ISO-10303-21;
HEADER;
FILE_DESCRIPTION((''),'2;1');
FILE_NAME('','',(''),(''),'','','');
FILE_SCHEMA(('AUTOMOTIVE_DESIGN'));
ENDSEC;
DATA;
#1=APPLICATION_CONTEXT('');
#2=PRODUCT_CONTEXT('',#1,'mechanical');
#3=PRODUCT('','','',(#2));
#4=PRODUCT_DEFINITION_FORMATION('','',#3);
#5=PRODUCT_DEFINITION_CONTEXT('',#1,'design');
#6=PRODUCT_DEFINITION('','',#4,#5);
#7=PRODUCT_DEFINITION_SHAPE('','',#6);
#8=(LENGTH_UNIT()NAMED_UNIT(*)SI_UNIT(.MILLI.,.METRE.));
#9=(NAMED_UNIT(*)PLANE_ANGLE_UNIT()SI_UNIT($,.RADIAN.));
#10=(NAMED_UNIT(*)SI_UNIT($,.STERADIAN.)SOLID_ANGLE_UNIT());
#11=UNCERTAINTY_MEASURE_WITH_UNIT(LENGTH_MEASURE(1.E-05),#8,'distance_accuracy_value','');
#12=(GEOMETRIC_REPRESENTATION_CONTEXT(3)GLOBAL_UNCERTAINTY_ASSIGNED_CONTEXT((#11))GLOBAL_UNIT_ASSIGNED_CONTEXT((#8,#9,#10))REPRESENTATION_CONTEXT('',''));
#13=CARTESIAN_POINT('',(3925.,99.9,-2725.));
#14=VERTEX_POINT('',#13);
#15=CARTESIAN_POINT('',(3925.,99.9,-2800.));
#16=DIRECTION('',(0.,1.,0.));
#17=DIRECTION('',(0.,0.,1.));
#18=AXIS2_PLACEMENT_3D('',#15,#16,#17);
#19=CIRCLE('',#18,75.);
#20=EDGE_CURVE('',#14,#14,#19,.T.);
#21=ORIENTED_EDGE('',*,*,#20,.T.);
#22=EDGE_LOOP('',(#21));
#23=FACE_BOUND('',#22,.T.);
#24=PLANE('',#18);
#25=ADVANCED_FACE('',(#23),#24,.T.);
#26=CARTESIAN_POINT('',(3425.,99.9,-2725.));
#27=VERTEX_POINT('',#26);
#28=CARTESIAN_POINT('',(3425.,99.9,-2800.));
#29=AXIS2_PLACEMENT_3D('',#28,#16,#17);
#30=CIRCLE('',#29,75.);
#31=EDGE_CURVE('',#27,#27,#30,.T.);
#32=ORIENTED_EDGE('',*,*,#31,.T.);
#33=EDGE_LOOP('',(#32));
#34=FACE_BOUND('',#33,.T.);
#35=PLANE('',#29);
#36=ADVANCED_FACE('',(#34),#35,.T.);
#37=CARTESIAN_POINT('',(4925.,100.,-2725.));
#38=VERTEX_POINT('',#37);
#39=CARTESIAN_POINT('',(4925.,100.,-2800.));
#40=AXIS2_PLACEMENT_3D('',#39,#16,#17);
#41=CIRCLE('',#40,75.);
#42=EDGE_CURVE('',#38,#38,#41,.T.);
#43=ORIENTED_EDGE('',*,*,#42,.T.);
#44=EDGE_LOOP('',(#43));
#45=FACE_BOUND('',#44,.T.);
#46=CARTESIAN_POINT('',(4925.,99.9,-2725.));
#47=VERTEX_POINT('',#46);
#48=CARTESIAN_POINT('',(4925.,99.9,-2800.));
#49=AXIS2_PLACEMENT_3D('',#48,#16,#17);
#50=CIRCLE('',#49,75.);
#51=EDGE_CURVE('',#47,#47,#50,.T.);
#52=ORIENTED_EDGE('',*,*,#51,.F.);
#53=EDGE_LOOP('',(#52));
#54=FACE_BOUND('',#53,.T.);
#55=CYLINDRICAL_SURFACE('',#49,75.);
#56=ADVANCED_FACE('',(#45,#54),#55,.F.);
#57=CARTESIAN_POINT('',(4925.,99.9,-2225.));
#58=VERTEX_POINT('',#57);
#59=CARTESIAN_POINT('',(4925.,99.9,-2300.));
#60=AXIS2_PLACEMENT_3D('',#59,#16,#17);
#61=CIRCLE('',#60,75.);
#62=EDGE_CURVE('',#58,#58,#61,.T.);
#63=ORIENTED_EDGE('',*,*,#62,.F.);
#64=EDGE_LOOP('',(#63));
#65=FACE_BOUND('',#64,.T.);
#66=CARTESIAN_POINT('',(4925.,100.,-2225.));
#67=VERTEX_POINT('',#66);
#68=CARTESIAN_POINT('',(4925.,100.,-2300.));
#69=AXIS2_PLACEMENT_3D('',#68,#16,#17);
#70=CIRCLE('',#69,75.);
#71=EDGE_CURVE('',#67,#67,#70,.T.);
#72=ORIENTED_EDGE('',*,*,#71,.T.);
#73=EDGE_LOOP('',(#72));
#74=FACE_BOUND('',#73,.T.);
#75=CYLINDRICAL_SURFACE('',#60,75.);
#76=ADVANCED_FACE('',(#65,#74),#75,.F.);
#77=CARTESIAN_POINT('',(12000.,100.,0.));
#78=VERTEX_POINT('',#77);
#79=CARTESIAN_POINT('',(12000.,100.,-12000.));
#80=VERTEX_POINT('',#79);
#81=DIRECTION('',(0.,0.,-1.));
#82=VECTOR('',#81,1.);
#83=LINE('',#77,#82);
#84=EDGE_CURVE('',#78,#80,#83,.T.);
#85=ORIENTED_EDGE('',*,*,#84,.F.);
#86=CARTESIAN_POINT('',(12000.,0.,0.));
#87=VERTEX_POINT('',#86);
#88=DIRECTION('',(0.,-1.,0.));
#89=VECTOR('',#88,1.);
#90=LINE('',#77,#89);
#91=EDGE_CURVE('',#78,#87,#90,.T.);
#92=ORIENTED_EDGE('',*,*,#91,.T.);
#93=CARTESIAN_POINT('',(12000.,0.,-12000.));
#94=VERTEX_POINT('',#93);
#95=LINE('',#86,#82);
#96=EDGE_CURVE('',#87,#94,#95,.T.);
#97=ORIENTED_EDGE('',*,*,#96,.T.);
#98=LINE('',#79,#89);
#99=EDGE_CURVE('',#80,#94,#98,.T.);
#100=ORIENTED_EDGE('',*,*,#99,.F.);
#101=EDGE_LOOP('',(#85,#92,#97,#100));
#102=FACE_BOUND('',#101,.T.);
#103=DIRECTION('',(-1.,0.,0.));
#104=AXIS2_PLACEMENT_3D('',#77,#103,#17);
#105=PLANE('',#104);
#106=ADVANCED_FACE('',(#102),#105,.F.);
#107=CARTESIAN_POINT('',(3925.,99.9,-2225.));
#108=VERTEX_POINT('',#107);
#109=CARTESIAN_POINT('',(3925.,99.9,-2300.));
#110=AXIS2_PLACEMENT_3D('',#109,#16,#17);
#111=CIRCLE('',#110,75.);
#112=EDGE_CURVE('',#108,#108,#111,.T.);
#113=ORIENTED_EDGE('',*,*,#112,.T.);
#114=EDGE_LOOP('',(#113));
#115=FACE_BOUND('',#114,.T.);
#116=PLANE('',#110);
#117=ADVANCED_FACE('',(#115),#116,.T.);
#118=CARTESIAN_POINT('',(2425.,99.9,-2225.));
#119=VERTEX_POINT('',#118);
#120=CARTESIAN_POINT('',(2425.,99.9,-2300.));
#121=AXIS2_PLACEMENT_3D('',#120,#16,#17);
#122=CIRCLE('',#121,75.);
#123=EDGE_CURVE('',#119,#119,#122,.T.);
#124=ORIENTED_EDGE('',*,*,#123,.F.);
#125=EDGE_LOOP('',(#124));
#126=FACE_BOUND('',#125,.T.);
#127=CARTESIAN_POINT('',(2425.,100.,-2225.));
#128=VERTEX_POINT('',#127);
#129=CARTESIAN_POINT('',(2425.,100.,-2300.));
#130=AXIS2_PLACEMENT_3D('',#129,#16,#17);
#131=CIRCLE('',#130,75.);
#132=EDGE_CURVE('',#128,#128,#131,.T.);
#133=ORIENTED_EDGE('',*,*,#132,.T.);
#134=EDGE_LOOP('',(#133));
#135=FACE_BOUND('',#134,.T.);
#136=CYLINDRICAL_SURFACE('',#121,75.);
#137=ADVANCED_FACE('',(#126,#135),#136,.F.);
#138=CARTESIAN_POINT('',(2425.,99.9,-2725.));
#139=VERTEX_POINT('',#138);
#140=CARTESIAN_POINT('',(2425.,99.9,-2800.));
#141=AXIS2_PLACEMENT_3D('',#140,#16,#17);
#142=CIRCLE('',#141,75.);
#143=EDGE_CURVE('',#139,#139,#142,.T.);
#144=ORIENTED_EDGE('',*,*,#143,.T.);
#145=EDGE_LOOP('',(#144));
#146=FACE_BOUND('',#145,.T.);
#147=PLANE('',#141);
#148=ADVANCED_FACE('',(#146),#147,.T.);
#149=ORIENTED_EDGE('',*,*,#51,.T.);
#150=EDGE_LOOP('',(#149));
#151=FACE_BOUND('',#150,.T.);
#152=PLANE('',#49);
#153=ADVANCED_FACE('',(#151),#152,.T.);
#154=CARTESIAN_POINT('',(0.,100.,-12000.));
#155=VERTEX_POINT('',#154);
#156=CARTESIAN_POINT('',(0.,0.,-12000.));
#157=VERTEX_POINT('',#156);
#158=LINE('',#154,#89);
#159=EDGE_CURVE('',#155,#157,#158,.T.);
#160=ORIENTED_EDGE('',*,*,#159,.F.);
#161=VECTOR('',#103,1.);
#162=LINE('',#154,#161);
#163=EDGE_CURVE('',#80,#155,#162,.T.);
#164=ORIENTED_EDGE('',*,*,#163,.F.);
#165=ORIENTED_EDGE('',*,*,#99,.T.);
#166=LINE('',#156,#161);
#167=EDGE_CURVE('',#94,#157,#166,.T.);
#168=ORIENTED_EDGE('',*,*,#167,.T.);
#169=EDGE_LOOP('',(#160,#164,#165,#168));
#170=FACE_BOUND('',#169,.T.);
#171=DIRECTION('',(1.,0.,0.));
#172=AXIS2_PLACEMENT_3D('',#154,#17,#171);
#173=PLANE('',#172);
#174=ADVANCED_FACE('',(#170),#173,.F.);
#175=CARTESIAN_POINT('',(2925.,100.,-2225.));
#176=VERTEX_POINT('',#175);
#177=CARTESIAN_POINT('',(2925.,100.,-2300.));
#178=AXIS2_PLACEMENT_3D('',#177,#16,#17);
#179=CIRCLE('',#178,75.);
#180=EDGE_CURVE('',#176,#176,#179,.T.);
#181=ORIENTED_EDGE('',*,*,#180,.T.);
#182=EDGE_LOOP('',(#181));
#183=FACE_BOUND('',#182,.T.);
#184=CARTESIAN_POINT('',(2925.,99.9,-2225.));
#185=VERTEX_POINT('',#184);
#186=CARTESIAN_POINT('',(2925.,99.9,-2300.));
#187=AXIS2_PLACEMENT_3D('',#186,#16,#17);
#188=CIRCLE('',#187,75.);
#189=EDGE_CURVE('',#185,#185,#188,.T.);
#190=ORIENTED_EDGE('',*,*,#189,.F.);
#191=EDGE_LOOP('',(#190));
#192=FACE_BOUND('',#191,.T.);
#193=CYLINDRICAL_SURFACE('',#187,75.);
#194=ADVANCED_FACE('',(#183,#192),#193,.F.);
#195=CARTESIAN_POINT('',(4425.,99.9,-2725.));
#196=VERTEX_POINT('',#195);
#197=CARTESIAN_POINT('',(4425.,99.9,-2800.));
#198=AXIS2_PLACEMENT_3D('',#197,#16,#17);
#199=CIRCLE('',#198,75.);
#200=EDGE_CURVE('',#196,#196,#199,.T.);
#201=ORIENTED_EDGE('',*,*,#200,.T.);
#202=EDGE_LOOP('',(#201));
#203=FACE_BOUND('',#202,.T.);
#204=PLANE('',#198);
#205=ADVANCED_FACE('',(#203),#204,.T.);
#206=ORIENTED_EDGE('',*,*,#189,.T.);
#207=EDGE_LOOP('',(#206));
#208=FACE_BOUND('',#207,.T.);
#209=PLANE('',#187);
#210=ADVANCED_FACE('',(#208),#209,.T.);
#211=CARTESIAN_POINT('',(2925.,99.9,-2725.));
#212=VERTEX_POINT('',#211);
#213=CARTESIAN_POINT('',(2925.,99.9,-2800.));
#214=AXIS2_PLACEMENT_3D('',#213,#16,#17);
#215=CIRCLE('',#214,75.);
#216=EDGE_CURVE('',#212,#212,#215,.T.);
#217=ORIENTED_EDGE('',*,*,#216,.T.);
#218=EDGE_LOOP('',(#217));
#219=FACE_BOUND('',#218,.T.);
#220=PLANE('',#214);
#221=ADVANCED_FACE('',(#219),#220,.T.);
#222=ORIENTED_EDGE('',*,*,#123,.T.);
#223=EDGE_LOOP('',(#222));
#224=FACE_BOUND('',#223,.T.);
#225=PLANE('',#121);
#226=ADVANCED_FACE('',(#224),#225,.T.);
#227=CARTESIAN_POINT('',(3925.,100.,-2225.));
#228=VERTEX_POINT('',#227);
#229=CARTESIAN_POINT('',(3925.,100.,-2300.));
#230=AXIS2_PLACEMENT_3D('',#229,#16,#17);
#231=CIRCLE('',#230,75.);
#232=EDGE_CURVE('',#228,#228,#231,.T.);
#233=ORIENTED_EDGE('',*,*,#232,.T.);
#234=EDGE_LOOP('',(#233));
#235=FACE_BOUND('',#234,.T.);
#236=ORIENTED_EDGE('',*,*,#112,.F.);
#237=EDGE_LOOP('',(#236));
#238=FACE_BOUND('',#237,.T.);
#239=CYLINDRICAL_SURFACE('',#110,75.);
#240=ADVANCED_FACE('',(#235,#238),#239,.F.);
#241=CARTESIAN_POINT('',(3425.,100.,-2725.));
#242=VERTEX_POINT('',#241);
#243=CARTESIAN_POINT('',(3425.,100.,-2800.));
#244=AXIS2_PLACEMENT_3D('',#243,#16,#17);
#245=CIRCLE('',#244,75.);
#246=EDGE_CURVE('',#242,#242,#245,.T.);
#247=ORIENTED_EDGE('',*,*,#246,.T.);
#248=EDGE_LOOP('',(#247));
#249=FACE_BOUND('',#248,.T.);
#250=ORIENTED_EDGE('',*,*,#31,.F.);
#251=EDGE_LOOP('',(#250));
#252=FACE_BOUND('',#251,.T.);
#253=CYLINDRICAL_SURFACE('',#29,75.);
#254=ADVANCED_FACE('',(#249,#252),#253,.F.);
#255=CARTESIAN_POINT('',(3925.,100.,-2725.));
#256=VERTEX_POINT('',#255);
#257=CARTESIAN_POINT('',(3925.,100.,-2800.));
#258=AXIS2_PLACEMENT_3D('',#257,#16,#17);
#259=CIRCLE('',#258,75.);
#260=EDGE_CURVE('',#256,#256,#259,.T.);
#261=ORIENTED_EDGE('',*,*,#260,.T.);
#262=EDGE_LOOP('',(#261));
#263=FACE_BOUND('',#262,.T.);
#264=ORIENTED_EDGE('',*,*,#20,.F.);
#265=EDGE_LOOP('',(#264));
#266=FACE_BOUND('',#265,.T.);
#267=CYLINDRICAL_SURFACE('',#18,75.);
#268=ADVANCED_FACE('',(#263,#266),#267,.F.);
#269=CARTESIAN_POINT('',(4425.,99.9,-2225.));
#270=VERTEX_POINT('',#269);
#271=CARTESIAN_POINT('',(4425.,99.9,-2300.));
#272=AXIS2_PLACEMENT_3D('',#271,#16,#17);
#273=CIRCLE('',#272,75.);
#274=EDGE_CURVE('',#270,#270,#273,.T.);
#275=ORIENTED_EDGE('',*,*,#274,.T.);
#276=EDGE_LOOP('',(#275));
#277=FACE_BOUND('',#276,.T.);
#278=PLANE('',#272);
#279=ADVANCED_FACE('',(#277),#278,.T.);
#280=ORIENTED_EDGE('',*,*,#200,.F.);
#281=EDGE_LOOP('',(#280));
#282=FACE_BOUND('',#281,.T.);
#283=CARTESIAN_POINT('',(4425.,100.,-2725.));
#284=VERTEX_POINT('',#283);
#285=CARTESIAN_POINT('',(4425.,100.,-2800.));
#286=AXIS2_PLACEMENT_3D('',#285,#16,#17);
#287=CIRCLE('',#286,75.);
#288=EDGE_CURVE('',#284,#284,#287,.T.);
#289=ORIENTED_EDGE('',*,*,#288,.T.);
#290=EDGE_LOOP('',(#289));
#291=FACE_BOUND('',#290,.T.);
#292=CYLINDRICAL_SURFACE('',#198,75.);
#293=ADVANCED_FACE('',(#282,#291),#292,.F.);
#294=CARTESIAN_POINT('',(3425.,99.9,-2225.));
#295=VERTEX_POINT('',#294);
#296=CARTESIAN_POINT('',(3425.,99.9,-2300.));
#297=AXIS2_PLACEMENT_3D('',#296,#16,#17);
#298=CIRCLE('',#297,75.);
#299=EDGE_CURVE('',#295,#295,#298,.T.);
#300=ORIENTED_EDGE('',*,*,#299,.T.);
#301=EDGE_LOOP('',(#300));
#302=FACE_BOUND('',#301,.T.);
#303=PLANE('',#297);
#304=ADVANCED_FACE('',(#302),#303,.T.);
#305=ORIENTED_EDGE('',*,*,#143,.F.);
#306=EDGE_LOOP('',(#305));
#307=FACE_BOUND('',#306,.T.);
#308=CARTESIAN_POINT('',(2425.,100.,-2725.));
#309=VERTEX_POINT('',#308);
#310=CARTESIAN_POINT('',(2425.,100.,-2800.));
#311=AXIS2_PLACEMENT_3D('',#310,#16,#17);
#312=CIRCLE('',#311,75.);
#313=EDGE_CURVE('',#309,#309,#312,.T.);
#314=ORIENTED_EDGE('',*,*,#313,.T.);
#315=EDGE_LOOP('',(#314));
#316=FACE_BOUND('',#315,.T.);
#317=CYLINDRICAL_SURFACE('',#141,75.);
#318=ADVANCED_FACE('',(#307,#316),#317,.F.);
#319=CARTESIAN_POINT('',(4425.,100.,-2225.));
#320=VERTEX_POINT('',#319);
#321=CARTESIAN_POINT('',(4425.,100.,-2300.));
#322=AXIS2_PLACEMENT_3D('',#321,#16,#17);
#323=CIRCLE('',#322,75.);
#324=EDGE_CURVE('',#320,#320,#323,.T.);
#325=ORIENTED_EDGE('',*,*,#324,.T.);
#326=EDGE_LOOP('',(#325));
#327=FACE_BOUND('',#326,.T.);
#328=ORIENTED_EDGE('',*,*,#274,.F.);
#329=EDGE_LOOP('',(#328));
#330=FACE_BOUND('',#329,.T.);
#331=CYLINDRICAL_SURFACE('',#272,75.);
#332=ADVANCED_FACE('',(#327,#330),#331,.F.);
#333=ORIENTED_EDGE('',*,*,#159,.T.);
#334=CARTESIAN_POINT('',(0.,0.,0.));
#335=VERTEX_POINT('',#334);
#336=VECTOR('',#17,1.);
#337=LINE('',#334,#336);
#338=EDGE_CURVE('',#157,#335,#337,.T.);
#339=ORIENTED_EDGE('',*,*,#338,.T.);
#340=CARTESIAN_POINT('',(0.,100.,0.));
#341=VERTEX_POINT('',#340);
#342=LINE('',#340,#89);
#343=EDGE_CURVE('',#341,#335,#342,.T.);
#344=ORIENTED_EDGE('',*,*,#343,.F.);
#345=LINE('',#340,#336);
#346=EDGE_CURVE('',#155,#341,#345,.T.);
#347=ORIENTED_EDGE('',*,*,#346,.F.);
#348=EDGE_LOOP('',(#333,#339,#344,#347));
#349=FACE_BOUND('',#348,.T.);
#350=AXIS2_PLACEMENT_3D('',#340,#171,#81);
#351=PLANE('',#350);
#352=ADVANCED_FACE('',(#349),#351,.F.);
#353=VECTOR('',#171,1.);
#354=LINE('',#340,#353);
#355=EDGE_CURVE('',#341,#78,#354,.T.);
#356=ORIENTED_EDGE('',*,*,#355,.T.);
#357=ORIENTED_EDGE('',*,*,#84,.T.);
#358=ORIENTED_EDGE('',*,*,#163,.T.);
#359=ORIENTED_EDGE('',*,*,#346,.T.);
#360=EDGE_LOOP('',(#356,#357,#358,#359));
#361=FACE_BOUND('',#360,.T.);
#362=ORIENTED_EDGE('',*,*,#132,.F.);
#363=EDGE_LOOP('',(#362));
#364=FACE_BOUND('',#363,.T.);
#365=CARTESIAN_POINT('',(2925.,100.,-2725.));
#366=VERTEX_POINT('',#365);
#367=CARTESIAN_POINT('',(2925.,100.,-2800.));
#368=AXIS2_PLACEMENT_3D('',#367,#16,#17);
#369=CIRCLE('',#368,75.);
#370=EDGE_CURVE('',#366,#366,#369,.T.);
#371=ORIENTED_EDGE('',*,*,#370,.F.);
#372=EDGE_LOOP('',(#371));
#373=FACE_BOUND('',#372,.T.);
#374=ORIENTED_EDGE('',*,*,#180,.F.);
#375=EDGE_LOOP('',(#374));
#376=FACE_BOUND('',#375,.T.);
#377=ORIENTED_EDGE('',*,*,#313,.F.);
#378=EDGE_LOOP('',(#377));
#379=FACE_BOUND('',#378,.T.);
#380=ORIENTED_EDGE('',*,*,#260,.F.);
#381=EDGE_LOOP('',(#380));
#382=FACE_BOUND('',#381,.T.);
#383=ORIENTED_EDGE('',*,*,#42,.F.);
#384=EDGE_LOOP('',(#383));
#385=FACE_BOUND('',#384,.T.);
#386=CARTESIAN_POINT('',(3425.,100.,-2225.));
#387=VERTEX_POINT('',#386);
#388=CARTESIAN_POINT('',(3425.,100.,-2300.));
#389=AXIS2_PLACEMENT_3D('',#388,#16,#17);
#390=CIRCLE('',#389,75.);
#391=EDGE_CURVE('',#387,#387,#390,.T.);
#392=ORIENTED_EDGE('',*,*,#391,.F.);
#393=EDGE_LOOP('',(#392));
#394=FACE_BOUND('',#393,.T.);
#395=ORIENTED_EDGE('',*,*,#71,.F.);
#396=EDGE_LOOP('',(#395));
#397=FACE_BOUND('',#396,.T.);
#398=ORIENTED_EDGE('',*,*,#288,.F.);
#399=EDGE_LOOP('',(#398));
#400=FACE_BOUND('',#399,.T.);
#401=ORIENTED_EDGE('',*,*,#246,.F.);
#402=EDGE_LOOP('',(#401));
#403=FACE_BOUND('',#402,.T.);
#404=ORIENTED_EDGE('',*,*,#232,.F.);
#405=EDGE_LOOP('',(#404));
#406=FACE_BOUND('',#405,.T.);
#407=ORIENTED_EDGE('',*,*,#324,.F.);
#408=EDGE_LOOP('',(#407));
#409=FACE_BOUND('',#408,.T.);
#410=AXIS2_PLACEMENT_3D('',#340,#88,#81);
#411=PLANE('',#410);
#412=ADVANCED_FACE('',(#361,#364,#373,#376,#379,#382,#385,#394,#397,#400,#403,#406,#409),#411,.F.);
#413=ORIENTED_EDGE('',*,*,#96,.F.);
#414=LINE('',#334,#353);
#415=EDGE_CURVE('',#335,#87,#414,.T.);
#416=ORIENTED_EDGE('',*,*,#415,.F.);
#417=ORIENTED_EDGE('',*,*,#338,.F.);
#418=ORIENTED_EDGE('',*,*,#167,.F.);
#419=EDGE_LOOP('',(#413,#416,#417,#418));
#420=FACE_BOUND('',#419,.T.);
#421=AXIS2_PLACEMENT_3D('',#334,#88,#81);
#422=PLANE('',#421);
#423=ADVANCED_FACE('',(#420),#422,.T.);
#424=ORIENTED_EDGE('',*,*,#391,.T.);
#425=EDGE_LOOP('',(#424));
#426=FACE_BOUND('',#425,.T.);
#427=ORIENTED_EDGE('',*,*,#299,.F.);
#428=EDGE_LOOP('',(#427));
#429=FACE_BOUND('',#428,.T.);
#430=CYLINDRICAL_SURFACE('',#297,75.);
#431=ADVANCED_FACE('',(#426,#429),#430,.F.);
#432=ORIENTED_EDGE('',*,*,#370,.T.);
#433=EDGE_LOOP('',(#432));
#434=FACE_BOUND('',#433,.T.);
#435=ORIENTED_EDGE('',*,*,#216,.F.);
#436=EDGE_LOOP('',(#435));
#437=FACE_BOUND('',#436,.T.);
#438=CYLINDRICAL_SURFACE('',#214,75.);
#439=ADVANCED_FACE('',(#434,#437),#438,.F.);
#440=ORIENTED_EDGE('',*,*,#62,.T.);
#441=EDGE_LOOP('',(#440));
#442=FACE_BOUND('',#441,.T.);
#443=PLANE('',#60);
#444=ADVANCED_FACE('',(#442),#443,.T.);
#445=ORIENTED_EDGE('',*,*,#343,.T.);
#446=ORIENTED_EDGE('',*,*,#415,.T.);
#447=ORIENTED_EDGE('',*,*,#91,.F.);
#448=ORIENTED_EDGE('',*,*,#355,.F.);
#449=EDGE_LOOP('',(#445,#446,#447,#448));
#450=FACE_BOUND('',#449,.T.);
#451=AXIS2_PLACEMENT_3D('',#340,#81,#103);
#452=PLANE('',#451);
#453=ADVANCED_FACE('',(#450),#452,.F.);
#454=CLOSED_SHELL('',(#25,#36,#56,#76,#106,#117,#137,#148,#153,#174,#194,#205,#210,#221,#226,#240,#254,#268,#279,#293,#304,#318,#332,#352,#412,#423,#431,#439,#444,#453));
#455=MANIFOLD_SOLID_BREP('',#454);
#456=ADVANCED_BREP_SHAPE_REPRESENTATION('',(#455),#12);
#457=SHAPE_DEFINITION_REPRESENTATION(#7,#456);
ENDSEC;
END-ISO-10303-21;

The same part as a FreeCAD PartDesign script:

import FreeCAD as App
import Part
import Sketcher
from FreeCAD import Vector

doc = App.newDocument("Part")
body = doc.addObject("PartDesign::Body", "Body")

# Sketch on XZ plane
sketch1 = doc.addObject("Sketcher::SketchObject", "Sketch")
body.addObject(sketch1)
sketch1.AttachmentSupport = (doc.XZ_Plane, [""])
sketch1.MapMode = "FlatFace"
sketch1.addGeometry(Part.LineSegment(Vector(0, -12000, 0), Vector(0, 0, 0)), False)
sketch1.addGeometry(Part.LineSegment(Vector(0, 0, 0), Vector(12000, 0, 0)), False)
sketch1.addGeometry(Part.LineSegment(Vector(12000, 0, 0), Vector(12000, -12000, 0)), False)
sketch1.addGeometry(Part.LineSegment(Vector(12000, -12000, 0), Vector(0, -12000, 0)), False)
sketch1.addConstraint(Sketcher.Constraint("Coincident", 0, 2, 1, 1))
sketch1.addConstraint(Sketcher.Constraint("Coincident", 1, 2, 2, 1))
sketch1.addConstraint(Sketcher.Constraint("Coincident", 2, 2, 3, 1))
sketch1.addConstraint(Sketcher.Constraint("Coincident", 3, 2, 0, 1))
sketch1.addConstraint(Sketcher.Constraint("Vertical", 0))
sketch1.addConstraint(Sketcher.Constraint("Horizontal", 1))
sketch1.addConstraint(Sketcher.Constraint("Vertical", 2))
sketch1.addConstraint(Sketcher.Constraint("Horizontal", 3))
sketch1.addConstraint(Sketcher.Constraint("Coincident", 0, 2, -1, 1))
sketch1.addConstraint(Sketcher.Constraint("Equal", 3, 0))
sketch1.addConstraint(Sketcher.Constraint("DistanceX", 1, 1, 1, 2, 12000.0))
pad1 = doc.addObject("PartDesign::Pad", "Pad")
body.addObject(pad1)
pad1.Profile = sketch1
pad1.Length = 100
pad1.Reversed = True

# Sketch on XZ plane
sketch2 = doc.addObject("Sketcher::SketchObject", "Sketch001")
body.addObject(sketch2)
sketch2.AttachmentSupport = (doc.XZ_Plane, [""])
sketch2.MapMode = "FlatFace"
sketch2.AttachmentOffset = App.Placement(Vector(0, 0, -100), App.Rotation())
sketch2.addGeometry(Part.Circle(Vector(2425, -2800, 0), Vector(0, 0, 1), 75), False)
sketch2.addGeometry(Part.Circle(Vector(2425, -2300, 0), Vector(0, 0, 1), 75), False)
sketch2.addGeometry(Part.Circle(Vector(2925, -2300, 0), Vector(0, 0, 1), 75), False)
sketch2.addGeometry(Part.Circle(Vector(3425, -2300, 0), Vector(0, 0, 1), 75), False)
sketch2.addGeometry(Part.Circle(Vector(3925, -2300, 0), Vector(0, 0, 1), 75), False)
sketch2.addGeometry(Part.Circle(Vector(4425, -2300, 0), Vector(0, 0, 1), 75), False)
sketch2.addGeometry(Part.Circle(Vector(4925, -2300, 0), Vector(0, 0, 1), 75), False)
sketch2.addGeometry(Part.Circle(Vector(2925, -2800, 0), Vector(0, 0, 1), 75), False)
sketch2.addGeometry(Part.Circle(Vector(3425, -2800, 0), Vector(0, 0, 1), 75), False)
sketch2.addGeometry(Part.Circle(Vector(3925, -2800, 0), Vector(0, 0, 1), 75), False)
sketch2.addGeometry(Part.Circle(Vector(4425, -2800, 0), Vector(0, 0, 1), 75), False)
sketch2.addGeometry(Part.Circle(Vector(4925, -2800, 0), Vector(0, 0, 1), 75), False)
sketch2.addConstraint(Sketcher.Constraint("Equal", 0, 1))
sketch2.addConstraint(Sketcher.Constraint("Equal", 1, 2))
sketch2.addConstraint(Sketcher.Constraint("Equal", 2, 3))
sketch2.addConstraint(Sketcher.Constraint("Equal", 3, 4))
sketch2.addConstraint(Sketcher.Constraint("Equal", 4, 5))
sketch2.addConstraint(Sketcher.Constraint("Equal", 5, 6))
sketch2.addConstraint(Sketcher.Constraint("Equal", 6, 7))
sketch2.addConstraint(Sketcher.Constraint("Equal", 7, 8))
sketch2.addConstraint(Sketcher.Constraint("Equal", 8, 9))
sketch2.addConstraint(Sketcher.Constraint("Equal", 9, 10))
sketch2.addConstraint(Sketcher.Constraint("Equal", 10, 11))
sketch2.addConstraint(Sketcher.Constraint("Horizontal", 1, 3, 2, 3))
sketch2.addConstraint(Sketcher.Constraint("Horizontal", 2, 3, 3, 3))
sketch2.addConstraint(Sketcher.Constraint("Horizontal", 3, 3, 4, 3))
sketch2.addConstraint(Sketcher.Constraint("Horizontal", 4, 3, 5, 3))
sketch2.addConstraint(Sketcher.Constraint("Horizontal", 5, 3, 6, 3))
sketch2.addConstraint(Sketcher.Constraint("Horizontal", 0, 3, 7, 3))
sketch2.addConstraint(Sketcher.Constraint("Horizontal", 7, 3, 8, 3))
sketch2.addConstraint(Sketcher.Constraint("Horizontal", 8, 3, 9, 3))
sketch2.addConstraint(Sketcher.Constraint("Horizontal", 9, 3, 10, 3))
sketch2.addConstraint(Sketcher.Constraint("Horizontal", 10, 3, 11, 3))
sketch2.addConstraint(Sketcher.Constraint("Vertical", 0, 3, 1, 3))
sketch2.addConstraint(Sketcher.Constraint("Vertical", 2, 3, 7, 3))
sketch2.addConstraint(Sketcher.Constraint("Vertical", 3, 3, 8, 3))
sketch2.addConstraint(Sketcher.Constraint("Vertical", 4, 3, 9, 3))
sketch2.addConstraint(Sketcher.Constraint("Vertical", 5, 3, 10, 3))
sketch2.addConstraint(Sketcher.Constraint("Vertical", 6, 3, 11, 3))
sketch2.addConstraint(Sketcher.Constraint("Diameter", 0, 150.0))
sketch2.addConstraint(Sketcher.Constraint("DistanceX", -1, 1, 0, 3, 2425.0))
sketch2.addConstraint(Sketcher.Constraint("DistanceY", 0, 3, -1, 1, 2800.0))
sketch2.addConstraint(Sketcher.Constraint("DistanceY", 1, 3, -1, 1, 2300.0))
sketch2.addConstraint(Sketcher.Constraint("DistanceX", -1, 1, 2, 3, 2925.0))
sketch2.addConstraint(Sketcher.Constraint("DistanceX", -1, 1, 3, 3, 3425.0))
sketch2.addConstraint(Sketcher.Constraint("DistanceX", -1, 1, 4, 3, 3925.0))
sketch2.addConstraint(Sketcher.Constraint("DistanceX", -1, 1, 5, 3, 4425.0))
sketch2.addConstraint(Sketcher.Constraint("DistanceX", -1, 1, 6, 3, 4925.0))
pocket1 = doc.addObject("PartDesign::Pocket", "Pocket")
body.addObject(pocket1)
pocket1.Profile = sketch2
pocket1.Length = 0.1
pocket1.Reversed = True

doc.recompute()
